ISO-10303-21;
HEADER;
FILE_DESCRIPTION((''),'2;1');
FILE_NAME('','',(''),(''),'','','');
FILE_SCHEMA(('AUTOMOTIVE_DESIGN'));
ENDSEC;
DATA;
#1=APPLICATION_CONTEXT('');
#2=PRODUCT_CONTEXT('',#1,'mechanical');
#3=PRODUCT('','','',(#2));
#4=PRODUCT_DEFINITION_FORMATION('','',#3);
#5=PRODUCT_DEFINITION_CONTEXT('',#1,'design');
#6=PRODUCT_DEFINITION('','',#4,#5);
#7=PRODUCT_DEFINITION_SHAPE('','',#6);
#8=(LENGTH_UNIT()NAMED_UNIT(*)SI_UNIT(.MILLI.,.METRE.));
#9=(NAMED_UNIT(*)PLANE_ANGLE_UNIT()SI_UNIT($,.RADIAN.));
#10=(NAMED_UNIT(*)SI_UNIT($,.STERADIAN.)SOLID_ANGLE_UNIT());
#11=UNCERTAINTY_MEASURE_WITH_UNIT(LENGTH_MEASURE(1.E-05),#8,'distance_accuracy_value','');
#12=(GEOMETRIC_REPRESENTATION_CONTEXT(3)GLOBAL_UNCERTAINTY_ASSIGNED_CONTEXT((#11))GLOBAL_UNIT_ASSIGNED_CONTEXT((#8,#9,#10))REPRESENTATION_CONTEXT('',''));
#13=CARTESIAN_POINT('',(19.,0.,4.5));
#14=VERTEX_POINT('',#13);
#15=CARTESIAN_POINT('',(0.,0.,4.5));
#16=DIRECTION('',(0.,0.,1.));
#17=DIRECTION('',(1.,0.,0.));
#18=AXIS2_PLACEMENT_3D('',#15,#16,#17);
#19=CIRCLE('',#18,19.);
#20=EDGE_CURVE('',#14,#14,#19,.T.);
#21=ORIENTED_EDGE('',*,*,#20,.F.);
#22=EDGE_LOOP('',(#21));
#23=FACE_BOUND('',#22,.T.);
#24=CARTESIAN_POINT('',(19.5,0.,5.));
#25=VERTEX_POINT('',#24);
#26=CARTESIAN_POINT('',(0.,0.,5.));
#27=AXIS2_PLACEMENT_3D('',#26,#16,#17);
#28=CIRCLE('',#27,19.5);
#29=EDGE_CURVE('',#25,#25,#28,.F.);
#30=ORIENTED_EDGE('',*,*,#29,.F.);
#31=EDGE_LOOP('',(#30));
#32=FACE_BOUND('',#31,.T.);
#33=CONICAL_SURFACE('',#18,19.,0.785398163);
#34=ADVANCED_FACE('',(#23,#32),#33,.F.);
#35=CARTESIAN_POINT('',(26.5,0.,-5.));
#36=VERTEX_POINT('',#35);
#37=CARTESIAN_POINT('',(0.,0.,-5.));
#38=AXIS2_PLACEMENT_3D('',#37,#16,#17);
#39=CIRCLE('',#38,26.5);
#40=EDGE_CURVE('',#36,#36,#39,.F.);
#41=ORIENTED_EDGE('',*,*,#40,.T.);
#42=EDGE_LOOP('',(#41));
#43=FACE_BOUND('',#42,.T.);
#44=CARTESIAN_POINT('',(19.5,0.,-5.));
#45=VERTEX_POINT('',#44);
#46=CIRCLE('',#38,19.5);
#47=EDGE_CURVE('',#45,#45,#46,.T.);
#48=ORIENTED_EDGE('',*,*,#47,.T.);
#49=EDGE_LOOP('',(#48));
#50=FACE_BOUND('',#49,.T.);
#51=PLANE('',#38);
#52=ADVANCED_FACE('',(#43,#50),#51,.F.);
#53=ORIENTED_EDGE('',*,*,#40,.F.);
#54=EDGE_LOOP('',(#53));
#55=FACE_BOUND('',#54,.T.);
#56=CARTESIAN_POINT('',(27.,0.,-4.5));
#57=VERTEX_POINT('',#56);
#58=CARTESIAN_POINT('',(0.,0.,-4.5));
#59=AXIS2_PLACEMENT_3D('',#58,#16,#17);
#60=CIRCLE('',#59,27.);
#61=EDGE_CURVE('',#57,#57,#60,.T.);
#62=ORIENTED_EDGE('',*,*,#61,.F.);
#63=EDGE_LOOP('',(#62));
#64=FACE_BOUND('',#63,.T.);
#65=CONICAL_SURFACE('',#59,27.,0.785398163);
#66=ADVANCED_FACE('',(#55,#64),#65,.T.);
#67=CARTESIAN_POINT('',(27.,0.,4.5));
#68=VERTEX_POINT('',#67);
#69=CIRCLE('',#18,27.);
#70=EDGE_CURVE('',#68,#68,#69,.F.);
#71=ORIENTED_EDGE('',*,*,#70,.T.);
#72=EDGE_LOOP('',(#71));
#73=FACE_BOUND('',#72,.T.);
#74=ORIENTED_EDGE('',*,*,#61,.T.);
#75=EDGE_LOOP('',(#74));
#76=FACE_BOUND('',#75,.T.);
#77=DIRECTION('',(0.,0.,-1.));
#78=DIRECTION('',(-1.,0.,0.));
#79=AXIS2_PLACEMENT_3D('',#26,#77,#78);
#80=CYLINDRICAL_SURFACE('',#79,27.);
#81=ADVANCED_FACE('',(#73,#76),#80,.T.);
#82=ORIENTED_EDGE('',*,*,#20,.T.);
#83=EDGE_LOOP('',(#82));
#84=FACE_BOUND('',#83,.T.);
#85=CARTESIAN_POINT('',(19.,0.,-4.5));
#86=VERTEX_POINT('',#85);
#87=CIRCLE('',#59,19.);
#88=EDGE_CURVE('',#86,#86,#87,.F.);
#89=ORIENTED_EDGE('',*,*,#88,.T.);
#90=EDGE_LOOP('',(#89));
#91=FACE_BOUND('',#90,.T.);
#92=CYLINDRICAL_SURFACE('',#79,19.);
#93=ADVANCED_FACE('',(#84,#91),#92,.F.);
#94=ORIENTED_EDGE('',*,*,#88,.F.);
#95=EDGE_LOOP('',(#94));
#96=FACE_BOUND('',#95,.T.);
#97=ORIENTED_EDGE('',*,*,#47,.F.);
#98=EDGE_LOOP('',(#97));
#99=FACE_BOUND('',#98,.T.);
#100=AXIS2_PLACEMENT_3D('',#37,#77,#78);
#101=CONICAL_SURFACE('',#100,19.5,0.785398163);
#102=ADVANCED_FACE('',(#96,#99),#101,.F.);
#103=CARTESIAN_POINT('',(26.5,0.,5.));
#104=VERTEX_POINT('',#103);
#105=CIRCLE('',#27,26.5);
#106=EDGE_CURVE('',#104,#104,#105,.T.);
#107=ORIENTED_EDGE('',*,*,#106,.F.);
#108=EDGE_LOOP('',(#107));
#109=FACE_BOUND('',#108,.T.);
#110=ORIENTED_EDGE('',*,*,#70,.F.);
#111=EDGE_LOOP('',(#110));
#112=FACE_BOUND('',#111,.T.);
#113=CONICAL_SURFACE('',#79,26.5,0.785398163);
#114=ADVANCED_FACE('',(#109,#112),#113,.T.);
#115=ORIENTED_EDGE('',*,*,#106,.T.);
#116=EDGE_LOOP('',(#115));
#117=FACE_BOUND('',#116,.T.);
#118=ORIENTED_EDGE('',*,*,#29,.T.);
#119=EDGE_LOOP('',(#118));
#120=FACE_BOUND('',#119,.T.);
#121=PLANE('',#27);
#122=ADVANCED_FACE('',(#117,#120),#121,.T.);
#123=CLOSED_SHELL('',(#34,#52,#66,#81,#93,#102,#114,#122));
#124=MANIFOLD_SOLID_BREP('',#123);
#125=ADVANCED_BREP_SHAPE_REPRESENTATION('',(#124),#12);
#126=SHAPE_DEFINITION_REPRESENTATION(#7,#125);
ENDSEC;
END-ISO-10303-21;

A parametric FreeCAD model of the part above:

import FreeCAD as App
import Part
import Sketcher
Q = App.Units.Quantity


def edges_at(feature, points):
    """Names of the edges that pass closest to the given points."""
    edges = feature.Shape.Edges
    near = lambda p: min(range(len(edges)), key=lambda i: edges[i].distToShape(Part.Vertex(*p))[0])
    return sorted({f"Edge{near(p) + 1}" for p in points})

doc = App.newDocument("Part")
params = doc.addObject("Spreadsheet::Sheet", "Params")
for row, (alias, value) in enumerate([
    ("sketch1_diameter", "54 mm"),
    ("sketch1_diameter2", "38 mm"),
    ("pad1_length", "10 mm"),
    ("chamfer_size", "0.5 mm"),
], start=1):
    params.set(f"A{row}", alias)
    params.set(f"B{row}", "=" + value)
    params.setAlias(f"B{row}", alias)

body = doc.addObject("PartDesign::Body", "Body")

# Sketch on XY plane
sketch1 = body.newObject("Sketcher::SketchObject", "Sketch")
sketch1.AttachmentSupport = (doc.getObject("XY_Plane"), [""])
sketch1.MapMode = "FlatFace"
sketch1.addGeometry([
    Part.Circle(App.Vector(0, 0, 0), App.Vector(0, 0, 1), 27),
    Part.Circle(App.Vector(0, 0, 0), App.Vector(0, 0, 1), 19),
], False)
sketch1.addConstraint([
    Sketcher.Constraint("Coincident", 0, 3, -1, 1),
    Sketcher.Constraint("Coincident", 1, 3, -1, 1),
    Sketcher.Constraint("Diameter", 0, Q("54 mm")),
    Sketcher.Constraint("Diameter", 1, Q("38 mm")),
])
sketch1.setExpression("Constraints[2]", "Params.sketch1_diameter")
sketch1.setExpression("Constraints[3]", "Params.sketch1_diameter2")
pad1 = body.newObject("PartDesign::Pad", "Pad")
pad1.Profile = sketch1
pad1.setExpression("Length", "Params.pad1_length")
pad1.Midplane = True
doc.recompute()

chamfer = body.newObject("PartDesign::Chamfer", "Chamfer")
chamfer.Base = (pad1, edges_at(pad1, [
    (-27, 0, -5),
    (-27, 0, 5),
    (-19, 0, -5),
    (-19, 0, 5),
]))
chamfer.setExpression("Size", "Params.chamfer_size")

doc.recompute()
